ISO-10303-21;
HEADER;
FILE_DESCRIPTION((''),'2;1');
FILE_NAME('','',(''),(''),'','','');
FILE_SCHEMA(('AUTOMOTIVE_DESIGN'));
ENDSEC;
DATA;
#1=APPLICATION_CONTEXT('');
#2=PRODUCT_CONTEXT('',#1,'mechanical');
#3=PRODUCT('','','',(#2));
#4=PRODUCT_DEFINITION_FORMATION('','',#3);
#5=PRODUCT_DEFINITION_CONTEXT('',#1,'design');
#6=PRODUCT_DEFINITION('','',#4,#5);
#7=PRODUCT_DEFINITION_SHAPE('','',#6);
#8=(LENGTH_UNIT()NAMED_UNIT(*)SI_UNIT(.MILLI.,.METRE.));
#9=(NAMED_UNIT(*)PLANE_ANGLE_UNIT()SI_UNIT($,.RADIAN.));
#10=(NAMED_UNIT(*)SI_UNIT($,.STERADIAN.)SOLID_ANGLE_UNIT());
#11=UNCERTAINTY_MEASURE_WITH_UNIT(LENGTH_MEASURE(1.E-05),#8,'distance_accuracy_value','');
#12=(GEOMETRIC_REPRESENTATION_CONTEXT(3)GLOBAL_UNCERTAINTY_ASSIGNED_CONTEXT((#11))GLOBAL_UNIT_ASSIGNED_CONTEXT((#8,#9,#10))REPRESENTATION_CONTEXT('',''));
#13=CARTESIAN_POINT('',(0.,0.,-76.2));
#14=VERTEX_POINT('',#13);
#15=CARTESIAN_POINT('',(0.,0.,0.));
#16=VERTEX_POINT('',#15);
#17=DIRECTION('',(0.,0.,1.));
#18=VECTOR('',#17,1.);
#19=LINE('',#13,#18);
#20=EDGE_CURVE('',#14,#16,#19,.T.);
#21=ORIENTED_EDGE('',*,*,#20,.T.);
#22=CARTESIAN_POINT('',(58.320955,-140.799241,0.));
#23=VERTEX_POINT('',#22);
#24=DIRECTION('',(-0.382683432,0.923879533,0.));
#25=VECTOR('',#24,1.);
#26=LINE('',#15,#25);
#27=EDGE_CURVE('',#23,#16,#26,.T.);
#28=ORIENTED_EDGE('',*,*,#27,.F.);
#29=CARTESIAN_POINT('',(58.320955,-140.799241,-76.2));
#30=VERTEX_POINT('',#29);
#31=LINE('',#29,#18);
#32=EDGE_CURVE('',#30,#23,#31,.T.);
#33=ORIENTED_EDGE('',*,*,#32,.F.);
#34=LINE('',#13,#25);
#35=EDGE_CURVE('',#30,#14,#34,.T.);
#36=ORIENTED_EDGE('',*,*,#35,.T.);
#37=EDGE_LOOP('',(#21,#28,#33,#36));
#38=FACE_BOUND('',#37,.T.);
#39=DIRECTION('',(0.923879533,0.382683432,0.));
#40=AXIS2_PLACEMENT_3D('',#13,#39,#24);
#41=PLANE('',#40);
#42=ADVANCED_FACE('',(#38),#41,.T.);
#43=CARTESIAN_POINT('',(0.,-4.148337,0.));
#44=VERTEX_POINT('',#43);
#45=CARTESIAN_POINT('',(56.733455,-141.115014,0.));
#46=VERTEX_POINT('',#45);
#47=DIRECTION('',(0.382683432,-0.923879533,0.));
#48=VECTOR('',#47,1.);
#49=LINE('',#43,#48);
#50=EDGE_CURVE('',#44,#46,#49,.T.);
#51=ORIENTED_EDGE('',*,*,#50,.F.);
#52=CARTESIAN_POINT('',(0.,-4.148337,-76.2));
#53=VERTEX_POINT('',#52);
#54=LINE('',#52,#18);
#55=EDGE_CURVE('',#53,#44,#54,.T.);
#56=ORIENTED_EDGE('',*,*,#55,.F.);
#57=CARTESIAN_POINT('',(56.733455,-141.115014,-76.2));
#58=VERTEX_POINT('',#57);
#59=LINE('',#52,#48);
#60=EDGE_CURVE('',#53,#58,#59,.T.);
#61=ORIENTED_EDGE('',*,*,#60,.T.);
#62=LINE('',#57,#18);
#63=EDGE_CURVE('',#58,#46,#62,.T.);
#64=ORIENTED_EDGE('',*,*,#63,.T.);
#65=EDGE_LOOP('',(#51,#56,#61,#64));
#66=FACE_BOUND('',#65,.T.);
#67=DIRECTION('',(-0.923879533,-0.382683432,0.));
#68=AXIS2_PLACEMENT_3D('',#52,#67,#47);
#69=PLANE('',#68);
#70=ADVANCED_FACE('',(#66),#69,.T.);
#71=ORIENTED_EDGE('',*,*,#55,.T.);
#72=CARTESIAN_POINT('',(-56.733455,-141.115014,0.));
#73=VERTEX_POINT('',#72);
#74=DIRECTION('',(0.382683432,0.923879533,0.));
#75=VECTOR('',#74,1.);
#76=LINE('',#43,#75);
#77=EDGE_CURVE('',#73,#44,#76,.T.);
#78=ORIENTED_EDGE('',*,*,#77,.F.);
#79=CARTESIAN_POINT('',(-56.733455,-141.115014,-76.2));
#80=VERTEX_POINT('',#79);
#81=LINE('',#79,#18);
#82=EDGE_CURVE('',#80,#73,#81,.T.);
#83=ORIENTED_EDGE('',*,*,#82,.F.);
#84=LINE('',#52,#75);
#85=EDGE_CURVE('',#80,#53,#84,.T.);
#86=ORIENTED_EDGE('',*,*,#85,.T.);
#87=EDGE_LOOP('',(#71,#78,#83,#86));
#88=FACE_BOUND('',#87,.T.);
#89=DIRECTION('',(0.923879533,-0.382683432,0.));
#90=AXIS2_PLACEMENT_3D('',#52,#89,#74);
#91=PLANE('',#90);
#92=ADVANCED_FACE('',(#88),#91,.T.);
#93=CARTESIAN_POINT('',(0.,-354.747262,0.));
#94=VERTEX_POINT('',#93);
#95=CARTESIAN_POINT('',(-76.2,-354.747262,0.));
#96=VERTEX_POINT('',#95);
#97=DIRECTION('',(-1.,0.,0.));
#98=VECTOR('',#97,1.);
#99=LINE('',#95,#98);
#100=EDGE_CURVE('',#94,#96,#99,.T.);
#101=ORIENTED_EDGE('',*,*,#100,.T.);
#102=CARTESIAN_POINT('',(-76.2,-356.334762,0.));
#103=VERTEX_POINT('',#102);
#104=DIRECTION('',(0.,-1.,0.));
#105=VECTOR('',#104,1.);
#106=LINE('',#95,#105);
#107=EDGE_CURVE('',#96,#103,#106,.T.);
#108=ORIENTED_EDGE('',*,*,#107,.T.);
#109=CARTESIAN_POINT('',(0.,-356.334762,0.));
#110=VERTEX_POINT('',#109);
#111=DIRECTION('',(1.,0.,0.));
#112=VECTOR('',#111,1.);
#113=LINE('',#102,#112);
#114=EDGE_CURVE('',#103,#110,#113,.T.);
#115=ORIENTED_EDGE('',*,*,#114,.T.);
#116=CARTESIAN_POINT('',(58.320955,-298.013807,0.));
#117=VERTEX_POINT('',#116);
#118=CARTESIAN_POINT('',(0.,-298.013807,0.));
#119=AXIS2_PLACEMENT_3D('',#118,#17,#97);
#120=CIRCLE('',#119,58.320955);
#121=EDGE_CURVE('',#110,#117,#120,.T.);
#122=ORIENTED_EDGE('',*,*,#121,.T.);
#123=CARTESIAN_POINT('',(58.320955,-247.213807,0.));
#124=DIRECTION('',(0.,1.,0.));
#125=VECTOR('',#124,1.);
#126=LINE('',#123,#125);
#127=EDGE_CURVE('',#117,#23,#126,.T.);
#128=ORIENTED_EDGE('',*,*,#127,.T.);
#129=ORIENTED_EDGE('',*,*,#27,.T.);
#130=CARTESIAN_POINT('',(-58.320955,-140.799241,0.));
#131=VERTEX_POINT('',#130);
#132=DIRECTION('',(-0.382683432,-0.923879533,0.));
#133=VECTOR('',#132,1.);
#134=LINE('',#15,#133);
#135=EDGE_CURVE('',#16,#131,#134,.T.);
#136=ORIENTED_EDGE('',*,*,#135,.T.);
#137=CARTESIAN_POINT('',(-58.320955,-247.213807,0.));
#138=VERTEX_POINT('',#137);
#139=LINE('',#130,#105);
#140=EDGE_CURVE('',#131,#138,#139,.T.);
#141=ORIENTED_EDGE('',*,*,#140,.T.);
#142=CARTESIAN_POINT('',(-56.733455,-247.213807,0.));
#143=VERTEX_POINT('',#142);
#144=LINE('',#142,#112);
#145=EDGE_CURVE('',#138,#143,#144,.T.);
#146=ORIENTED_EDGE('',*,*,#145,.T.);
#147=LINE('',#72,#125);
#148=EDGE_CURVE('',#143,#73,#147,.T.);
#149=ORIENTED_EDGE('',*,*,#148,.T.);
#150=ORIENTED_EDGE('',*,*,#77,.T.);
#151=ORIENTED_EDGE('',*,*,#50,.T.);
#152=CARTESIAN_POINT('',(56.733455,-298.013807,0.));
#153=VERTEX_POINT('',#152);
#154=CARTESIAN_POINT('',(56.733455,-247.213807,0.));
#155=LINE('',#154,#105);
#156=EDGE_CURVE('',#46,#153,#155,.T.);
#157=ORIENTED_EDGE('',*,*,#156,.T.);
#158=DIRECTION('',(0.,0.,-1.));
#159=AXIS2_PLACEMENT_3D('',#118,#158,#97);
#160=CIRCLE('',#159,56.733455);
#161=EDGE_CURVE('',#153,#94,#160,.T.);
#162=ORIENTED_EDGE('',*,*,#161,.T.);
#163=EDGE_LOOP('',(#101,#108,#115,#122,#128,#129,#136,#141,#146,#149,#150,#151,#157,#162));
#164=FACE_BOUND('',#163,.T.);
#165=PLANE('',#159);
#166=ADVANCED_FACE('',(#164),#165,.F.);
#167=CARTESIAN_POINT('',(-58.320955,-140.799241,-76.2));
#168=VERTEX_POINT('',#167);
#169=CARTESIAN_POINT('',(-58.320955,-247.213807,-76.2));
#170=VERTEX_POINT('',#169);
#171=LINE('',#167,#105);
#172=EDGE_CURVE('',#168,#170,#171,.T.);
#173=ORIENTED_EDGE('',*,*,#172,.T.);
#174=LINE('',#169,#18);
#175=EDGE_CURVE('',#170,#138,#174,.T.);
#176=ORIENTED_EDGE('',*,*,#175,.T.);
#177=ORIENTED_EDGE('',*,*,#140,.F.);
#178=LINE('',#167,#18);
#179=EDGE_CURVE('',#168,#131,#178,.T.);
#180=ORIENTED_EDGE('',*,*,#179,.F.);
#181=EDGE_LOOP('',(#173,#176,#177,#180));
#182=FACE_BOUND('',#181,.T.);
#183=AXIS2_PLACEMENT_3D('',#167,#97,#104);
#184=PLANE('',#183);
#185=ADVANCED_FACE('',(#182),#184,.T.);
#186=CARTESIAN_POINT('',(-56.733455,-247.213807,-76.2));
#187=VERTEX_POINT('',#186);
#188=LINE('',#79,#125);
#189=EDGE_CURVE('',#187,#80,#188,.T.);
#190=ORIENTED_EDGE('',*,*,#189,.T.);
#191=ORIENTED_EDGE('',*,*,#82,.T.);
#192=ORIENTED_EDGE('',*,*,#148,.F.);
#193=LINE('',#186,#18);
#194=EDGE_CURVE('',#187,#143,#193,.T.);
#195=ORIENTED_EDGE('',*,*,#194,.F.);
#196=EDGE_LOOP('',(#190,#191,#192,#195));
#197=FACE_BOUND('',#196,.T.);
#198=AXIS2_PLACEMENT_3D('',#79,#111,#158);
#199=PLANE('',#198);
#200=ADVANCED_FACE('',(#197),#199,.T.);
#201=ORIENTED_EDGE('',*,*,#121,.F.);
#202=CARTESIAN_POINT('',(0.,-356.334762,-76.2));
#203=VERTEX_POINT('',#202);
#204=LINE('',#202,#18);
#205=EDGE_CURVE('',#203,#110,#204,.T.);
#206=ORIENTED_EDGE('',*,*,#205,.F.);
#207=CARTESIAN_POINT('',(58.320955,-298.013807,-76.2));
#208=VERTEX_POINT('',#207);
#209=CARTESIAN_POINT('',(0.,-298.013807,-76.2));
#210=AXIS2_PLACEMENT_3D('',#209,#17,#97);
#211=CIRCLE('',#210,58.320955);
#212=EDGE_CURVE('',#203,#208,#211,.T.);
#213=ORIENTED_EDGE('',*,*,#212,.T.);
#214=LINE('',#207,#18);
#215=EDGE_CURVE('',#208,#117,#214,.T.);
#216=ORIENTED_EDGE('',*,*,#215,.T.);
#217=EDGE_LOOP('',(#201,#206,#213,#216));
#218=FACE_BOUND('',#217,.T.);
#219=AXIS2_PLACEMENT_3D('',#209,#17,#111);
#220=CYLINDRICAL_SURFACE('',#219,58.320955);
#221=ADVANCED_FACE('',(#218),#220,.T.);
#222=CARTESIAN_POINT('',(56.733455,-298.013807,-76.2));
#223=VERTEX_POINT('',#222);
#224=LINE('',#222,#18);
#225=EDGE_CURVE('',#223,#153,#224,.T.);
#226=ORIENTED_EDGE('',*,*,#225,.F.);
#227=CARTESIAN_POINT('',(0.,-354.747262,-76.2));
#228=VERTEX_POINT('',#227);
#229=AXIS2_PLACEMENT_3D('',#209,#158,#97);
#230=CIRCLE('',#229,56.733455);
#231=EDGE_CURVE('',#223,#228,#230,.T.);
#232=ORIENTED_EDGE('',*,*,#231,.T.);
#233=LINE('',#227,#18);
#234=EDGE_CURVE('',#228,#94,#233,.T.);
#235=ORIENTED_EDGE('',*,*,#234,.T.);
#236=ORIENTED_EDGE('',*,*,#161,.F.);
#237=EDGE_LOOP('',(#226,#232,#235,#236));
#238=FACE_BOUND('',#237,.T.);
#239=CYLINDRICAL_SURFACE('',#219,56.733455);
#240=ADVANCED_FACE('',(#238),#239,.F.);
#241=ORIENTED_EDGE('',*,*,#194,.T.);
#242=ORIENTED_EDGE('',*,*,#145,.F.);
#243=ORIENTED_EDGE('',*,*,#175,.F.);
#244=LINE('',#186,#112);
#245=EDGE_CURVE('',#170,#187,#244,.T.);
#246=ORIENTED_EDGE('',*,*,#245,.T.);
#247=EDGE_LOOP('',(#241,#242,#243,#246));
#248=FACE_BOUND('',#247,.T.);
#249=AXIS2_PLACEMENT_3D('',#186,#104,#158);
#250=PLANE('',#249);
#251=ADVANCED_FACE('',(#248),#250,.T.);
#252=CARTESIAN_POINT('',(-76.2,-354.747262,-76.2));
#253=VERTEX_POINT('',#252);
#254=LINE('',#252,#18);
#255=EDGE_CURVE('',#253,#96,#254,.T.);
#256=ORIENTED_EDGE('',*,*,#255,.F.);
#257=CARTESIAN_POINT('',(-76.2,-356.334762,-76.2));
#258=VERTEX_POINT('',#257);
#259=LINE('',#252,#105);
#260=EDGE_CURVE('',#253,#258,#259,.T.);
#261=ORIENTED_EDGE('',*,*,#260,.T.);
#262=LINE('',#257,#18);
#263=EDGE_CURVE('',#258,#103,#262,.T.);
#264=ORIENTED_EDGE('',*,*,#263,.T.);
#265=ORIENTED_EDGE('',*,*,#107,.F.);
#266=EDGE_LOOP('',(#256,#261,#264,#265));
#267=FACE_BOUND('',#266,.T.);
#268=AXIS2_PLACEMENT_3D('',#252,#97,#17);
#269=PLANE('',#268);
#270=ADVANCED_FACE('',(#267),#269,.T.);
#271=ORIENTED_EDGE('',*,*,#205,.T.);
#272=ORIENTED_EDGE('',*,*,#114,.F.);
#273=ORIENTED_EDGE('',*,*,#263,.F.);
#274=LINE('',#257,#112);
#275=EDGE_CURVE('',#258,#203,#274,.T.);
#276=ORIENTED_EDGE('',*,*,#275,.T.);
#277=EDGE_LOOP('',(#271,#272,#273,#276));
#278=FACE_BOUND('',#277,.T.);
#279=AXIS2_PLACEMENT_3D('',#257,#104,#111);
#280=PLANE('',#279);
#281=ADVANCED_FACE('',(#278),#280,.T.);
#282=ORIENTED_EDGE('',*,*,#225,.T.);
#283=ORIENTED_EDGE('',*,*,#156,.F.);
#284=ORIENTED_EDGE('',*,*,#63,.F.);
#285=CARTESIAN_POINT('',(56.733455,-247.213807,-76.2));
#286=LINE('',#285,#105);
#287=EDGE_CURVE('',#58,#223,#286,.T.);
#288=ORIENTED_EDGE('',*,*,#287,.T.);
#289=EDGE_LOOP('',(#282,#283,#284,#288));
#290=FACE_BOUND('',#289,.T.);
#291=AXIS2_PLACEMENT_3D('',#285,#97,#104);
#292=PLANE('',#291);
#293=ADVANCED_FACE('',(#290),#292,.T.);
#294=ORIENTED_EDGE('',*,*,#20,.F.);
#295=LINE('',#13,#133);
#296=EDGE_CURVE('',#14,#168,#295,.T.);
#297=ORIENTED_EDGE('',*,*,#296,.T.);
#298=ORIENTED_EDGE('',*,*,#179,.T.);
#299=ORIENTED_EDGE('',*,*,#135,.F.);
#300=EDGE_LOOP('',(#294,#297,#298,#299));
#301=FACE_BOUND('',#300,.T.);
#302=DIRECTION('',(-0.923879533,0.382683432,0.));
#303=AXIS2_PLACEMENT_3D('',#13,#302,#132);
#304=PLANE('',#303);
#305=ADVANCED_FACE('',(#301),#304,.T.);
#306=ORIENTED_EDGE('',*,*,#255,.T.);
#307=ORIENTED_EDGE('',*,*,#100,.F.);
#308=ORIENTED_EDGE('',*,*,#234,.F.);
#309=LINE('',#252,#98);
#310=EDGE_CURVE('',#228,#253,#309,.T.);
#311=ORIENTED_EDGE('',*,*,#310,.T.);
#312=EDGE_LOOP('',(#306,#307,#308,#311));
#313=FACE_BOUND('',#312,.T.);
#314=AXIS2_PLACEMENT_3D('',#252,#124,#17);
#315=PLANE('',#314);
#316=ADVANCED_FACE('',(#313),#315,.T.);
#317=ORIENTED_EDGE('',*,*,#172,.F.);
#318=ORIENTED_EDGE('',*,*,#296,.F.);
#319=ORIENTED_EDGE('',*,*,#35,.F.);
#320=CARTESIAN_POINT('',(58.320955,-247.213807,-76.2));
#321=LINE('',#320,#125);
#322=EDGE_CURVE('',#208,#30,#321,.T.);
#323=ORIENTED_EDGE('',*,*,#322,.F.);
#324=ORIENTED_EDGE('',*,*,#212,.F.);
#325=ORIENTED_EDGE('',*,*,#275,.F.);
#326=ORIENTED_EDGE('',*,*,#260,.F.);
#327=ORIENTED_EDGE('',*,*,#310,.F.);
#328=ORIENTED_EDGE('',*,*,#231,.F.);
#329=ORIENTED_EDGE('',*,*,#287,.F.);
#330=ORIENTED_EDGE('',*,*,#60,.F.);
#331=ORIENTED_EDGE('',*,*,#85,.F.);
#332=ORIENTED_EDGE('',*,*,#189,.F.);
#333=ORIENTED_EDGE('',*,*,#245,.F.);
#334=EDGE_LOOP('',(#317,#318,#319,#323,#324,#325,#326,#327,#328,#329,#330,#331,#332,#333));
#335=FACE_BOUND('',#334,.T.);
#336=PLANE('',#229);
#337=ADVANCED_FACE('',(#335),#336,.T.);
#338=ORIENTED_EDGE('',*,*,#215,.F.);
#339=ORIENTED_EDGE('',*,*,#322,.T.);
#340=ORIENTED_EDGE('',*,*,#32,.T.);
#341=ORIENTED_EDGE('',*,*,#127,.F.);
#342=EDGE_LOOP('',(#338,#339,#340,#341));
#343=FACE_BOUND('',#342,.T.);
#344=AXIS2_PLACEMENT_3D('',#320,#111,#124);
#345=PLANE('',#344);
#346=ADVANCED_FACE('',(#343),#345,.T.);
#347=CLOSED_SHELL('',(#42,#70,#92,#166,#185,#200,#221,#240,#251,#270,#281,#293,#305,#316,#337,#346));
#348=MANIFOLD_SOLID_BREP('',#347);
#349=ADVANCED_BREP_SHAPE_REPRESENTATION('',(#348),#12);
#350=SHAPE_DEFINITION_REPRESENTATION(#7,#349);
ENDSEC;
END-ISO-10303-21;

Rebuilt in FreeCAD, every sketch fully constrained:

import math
import FreeCAD as App
import Part
import Sketcher

V = App.Vector
Q = App.Units.Quantity

doc = App.newDocument("Part")
body = doc.addObject("PartDesign::Body", "Body")

# Sketch on XY plane
sketch1 = body.newObject("Sketcher::SketchObject", "Sketch")
sketch1.AttachmentSupport = (doc.getObject("XY_Plane"), [""])
sketch1.MapMode = "FlatFace"
sketch1.addGeometry([
    Part.LineSegment(V(58.320955, -140.799241, 0), V(0, 0, 0)),  # 0
    Part.LineSegment(V(0, 0, 0), V(-58.320955, -140.799241, 0)),  # 1
    Part.LineSegment(V(-58.320955, -140.799241, 0), V(-58.320955, -247.213807, 0)),  # 2
    Part.LineSegment(V(-58.320955, -247.213807, 0), V(-56.733455, -247.213807, 0)),  # 3
    Part.LineSegment(V(-56.733455, -247.213807, 0), V(-56.733455, -141.115014, 0)),  # 4
    Part.LineSegment(V(-56.733455, -141.115014, 0), V(0, -4.148337, 0)),  # 5
    Part.LineSegment(V(0, -4.148337, 0), V(56.733455, -141.115014, 0)),  # 6
    Part.LineSegment(V(56.733455, -141.115014, 0), V(56.733455, -298.013807, 0)),  # 7
    Part.ArcOfCircle(Part.Circle(V(0, -298.013807, 0), V(0, 0, 1), 56.733455), math.radians(-90), math.radians(0)),  # 8
    Part.LineSegment(V(0, -354.747262, 0), V(-76.2, -354.747262, 0)),  # 9
    Part.LineSegment(V(-76.2, -354.747262, 0), V(-76.2, -356.334762, 0)),  # 10
    Part.LineSegment(V(-76.2, -356.334762, 0), V(0, -356.334762, 0)),  # 11
    Part.ArcOfCircle(Part.Circle(V(0, -298.013807, 0), V(0, 0, 1), 58.320955), math.radians(-90), math.radians(0)),  # 12
    Part.LineSegment(V(58.320955, -298.013807, 0), V(58.320955, -140.799241, 0)),  # 13
], False)
sketch1.addConstraint([
    Sketcher.Constraint("Coincident", 0, 2, 1, 1),
    Sketcher.Constraint("Coincident", 1, 2, 2, 1),
    Sketcher.Constraint("Coincident", 2, 2, 3, 1),
    Sketcher.Constraint("Coincident", 3, 2, 4, 1),
    Sketcher.Constraint("Coincident", 4, 2, 5, 1),
    Sketcher.Constraint("Coincident", 5, 2, 6, 1),
    Sketcher.Constraint("Coincident", 6, 2, 7, 1),
    Sketcher.Constraint("Tangent", 7, 2, 8, 2),
    Sketcher.Constraint("Tangent", 8, 1, 9, 1),
    Sketcher.Constraint("Coincident", 9, 2, 10, 1),
    Sketcher.Constraint("Coincident", 10, 2, 11, 1),
    Sketcher.Constraint("Tangent", 11, 2, 12, 1),
    Sketcher.Constraint("Tangent", 12, 2, 13, 1),
    Sketcher.Constraint("Coincident", 13, 2, 0, 1),
    Sketcher.Constraint("Vertical", 2),
    Sketcher.Constraint("Horizontal", 3),
    Sketcher.Constraint("Vertical", 4),
    Sketcher.Constraint("Vertical", 7),
    Sketcher.Constraint("Horizontal", 9),
    Sketcher.Constraint("Vertical", 10),
    Sketcher.Constraint("Horizontal", 11),
    Sketcher.Constraint("Vertical", 13),
    Sketcher.Constraint("Coincident", 0, 2, -1, 1),
    Sketcher.Constraint("Coincident", 12, 3, 8, 3),
    Sketcher.Constraint("Symmetric", 4, 2, 6, 2, -2),
    Sketcher.Constraint("Symmetric", 1, 2, 13, 2, -2),
    Sketcher.Constraint("PointOnObject", 8, 3, -2),
    Sketcher.Constraint("PointOnObject", 5, 2, -2),
    Sketcher.Constraint("Parallel", 1, 5),
    Sketcher.Constraint("DistanceX", 9, 2, 9, 1, Q("3 in")),
    Sketcher.Constraint("Distance", 0, Q("6 in")),
    Sketcher.Constraint("DistanceY", 8, 3, 2, 2, Q("2 in")),
    Sketcher.Constraint("Angle", 0, Q("112.5 deg")),
    Sketcher.Constraint("DistanceX", 3, 1, 3, 2, Q("0.0625 in")),
    Sketcher.Constraint("DistanceY", 2, 2, 2, 1, 106.414566),
    Sketcher.Constraint("DistanceY", 4, 1, 4, 2, 106.098793),
])
pad1 = body.newObject("PartDesign::Pad", "Pad")
pad1.Profile = sketch1
pad1.Length = Q("3 in")
pad1.Reversed = True

doc.recompute()
